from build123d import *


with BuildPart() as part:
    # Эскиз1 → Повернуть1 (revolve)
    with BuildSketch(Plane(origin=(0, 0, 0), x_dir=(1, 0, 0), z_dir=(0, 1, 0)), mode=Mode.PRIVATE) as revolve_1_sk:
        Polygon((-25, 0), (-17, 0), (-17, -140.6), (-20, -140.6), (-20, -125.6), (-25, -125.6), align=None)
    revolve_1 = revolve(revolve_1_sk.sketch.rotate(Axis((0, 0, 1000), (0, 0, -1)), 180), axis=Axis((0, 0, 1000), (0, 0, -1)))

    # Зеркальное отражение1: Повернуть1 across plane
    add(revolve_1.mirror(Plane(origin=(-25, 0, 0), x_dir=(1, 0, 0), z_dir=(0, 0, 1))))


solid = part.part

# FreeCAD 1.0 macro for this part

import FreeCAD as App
import Part
import Sketcher

V = App.Vector


def add_polygon(sketch, points):
    """Adds a closed chain of lines whose ends are joined by coincident constraints."""
    first, n = sketch.GeometryCount, len(points)
    for a, b in zip(points, points[1:] + points[:1]):
        sketch.addGeometry(Part.LineSegment(App.Vector(*a, 0), App.Vector(*b, 0)), False)
    for i in range(n):
        sketch.addConstraint(Sketcher.Constraint("Coincident", first + i, 2, first + (i + 1) % n, 1))

doc = App.newDocument("Part")
body = doc.addObject("PartDesign::Body", "Body")

sketch1 = doc.addObject("Sketcher::SketchObject", "Sketch")
body.addObject(sketch1)
sketch1.AttachmentSupport = (doc.XZ_Plane, [""])
sketch1.MapMode = "FlatFace"
add_polygon(sketch1, [(-17, 0), (-25, 0), (-25, 125.6), (-20, 125.6), (-20, 140.6), (-17, 140.6)])
sketch1.addConstraint([
    Sketcher.Constraint("Horizontal", 0),
    Sketcher.Constraint("Vertical", 1),
    Sketcher.Constraint("Horizontal", 2),
    Sketcher.Constraint("Vertical", 3),
    Sketcher.Constraint("Horizontal", 4),
    Sketcher.Constraint("Vertical", 5),
    Sketcher.Constraint("PointOnObject", 0, 2, -1),
    Sketcher.Constraint("DistanceX", 0, 2, 0, 1, 8.0),
    Sketcher.Constraint("DistanceX", 2, 1, 2, 2, 5.0),
    Sketcher.Constraint("DistanceY", 3, 1, 3, 2, 15.0),
    Sketcher.Constraint("DistanceY", 1, 1, 1, 2, 125.6),
    Sketcher.Constraint("DistanceX", 0, 2, -1, 1, 25.0),
])
revolution = doc.addObject("PartDesign::Revolution", "Revolution")
body.addObject(revolution)
revolution.Profile = sketch1
revolution.ReferenceAxis = (sketch1, ["V_Axis"])
revolution.Angle = 360
doc.recompute()

mirrored = doc.addObject("PartDesign::Mirrored", "Mirrored")
body.addObject(mirrored)
mirrored.Originals = [revolution]
mirrored.MirrorPlane = (doc.XY_Plane, [""])
body.Tip = mirrored

doc.recompute()
